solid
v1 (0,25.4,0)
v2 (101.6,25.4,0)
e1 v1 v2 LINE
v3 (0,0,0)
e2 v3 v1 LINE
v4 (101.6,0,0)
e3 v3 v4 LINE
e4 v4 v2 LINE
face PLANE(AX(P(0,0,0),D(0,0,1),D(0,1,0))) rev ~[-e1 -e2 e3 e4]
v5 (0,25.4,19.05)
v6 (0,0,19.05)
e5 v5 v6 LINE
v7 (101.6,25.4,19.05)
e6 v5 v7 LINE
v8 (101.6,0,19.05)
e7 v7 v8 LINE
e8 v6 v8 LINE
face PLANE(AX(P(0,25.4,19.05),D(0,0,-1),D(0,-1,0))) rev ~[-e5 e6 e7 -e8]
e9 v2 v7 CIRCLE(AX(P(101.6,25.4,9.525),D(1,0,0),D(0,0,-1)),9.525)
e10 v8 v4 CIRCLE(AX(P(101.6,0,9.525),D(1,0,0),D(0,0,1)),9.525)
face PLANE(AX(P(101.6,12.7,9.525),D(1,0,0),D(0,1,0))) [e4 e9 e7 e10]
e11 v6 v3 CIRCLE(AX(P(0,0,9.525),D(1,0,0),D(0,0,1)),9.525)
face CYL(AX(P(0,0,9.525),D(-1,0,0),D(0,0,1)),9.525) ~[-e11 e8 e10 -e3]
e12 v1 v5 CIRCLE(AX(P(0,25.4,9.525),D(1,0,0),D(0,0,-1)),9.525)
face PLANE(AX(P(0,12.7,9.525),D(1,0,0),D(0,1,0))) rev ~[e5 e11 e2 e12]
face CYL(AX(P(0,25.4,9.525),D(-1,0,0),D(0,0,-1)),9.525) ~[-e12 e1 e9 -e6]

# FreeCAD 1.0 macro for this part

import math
import FreeCAD as App
import Part
import Sketcher

V = App.Vector
Q = App.Units.Quantity

doc = App.newDocument("Part")
params = doc.addObject("Spreadsheet::Sheet", "Params")
for row, (alias, value) in enumerate([
    ("sketch1_width", "1 in"),
    ("sketch1_radius", "0.375 in"),
    ("pad1_length", "4 in"),
], start=1):
    params.set(f"A{row}", alias)
    params.set(f"B{row}", "=" + value)
    params.setAlias(f"B{row}", alias)

body = doc.addObject("PartDesign::Body", "Body")

sketch1 = body.newObject("Sketcher::SketchObject", "Sketch")
sketch1.AttachmentSupport = (doc.getObject("YZ_Plane"), [""])
sketch1.MapMode = "FlatFace"
sketch1.addGeometry(Part.ArcOfCircle(Part.Circle(V(0, 9.525, 0), V(0, 0, 1), 9.525), math.radians(90), math.radians(270)), False)
sketch1.addGeometry(Part.LineSegment(V(0, 0, 0), V(25.4, 0, 0)), False)
sketch1.addGeometry(Part.ArcOfCircle(Part.Circle(V(25.4, 9.525, 0), V(0, 0, 1), 9.525), math.radians(-90), math.radians(90)), False)
sketch1.addGeometry(Part.LineSegment(V(25.4, 19.05, 0), V(0, 19.05, 0)), False)
sketch1.addConstraint(Sketcher.Constraint("Tangent", 0, 2, 1, 1))
sketch1.addConstraint(Sketcher.Constraint("Tangent", 1, 2, 2, 1))
sketch1.addConstraint(Sketcher.Constraint("Tangent", 2, 2, 3, 1))
sketch1.addConstraint(Sketcher.Constraint("Tangent", 3, 2, 0, 1))
sketch1.addConstraint(Sketcher.Constraint("Horizontal", 1))
sketch1.addConstraint(Sketcher.Constraint("Horizontal", 3))
sketch1.addConstraint(Sketcher.Constraint("Coincident", 0, 2, -1, 1))
sketch1.addConstraint(Sketcher.Constraint("DistanceX", 1, 1, 1, 2, Q("1 in")))
sketch1.addConstraint(Sketcher.Constraint("Radius", 0, Q("0.375 in")))
sketch1.setExpression("Constraints[7]", "Params.sketch1_width")
sketch1.setExpression("Constraints[8]", "Params.sketch1_radius")
pad1 = body.newObject("PartDesign::Pad", "Pad")
pad1.Profile = sketch1
pad1.setExpression("Length", "Params.pad1_length")

doc.recompute()
